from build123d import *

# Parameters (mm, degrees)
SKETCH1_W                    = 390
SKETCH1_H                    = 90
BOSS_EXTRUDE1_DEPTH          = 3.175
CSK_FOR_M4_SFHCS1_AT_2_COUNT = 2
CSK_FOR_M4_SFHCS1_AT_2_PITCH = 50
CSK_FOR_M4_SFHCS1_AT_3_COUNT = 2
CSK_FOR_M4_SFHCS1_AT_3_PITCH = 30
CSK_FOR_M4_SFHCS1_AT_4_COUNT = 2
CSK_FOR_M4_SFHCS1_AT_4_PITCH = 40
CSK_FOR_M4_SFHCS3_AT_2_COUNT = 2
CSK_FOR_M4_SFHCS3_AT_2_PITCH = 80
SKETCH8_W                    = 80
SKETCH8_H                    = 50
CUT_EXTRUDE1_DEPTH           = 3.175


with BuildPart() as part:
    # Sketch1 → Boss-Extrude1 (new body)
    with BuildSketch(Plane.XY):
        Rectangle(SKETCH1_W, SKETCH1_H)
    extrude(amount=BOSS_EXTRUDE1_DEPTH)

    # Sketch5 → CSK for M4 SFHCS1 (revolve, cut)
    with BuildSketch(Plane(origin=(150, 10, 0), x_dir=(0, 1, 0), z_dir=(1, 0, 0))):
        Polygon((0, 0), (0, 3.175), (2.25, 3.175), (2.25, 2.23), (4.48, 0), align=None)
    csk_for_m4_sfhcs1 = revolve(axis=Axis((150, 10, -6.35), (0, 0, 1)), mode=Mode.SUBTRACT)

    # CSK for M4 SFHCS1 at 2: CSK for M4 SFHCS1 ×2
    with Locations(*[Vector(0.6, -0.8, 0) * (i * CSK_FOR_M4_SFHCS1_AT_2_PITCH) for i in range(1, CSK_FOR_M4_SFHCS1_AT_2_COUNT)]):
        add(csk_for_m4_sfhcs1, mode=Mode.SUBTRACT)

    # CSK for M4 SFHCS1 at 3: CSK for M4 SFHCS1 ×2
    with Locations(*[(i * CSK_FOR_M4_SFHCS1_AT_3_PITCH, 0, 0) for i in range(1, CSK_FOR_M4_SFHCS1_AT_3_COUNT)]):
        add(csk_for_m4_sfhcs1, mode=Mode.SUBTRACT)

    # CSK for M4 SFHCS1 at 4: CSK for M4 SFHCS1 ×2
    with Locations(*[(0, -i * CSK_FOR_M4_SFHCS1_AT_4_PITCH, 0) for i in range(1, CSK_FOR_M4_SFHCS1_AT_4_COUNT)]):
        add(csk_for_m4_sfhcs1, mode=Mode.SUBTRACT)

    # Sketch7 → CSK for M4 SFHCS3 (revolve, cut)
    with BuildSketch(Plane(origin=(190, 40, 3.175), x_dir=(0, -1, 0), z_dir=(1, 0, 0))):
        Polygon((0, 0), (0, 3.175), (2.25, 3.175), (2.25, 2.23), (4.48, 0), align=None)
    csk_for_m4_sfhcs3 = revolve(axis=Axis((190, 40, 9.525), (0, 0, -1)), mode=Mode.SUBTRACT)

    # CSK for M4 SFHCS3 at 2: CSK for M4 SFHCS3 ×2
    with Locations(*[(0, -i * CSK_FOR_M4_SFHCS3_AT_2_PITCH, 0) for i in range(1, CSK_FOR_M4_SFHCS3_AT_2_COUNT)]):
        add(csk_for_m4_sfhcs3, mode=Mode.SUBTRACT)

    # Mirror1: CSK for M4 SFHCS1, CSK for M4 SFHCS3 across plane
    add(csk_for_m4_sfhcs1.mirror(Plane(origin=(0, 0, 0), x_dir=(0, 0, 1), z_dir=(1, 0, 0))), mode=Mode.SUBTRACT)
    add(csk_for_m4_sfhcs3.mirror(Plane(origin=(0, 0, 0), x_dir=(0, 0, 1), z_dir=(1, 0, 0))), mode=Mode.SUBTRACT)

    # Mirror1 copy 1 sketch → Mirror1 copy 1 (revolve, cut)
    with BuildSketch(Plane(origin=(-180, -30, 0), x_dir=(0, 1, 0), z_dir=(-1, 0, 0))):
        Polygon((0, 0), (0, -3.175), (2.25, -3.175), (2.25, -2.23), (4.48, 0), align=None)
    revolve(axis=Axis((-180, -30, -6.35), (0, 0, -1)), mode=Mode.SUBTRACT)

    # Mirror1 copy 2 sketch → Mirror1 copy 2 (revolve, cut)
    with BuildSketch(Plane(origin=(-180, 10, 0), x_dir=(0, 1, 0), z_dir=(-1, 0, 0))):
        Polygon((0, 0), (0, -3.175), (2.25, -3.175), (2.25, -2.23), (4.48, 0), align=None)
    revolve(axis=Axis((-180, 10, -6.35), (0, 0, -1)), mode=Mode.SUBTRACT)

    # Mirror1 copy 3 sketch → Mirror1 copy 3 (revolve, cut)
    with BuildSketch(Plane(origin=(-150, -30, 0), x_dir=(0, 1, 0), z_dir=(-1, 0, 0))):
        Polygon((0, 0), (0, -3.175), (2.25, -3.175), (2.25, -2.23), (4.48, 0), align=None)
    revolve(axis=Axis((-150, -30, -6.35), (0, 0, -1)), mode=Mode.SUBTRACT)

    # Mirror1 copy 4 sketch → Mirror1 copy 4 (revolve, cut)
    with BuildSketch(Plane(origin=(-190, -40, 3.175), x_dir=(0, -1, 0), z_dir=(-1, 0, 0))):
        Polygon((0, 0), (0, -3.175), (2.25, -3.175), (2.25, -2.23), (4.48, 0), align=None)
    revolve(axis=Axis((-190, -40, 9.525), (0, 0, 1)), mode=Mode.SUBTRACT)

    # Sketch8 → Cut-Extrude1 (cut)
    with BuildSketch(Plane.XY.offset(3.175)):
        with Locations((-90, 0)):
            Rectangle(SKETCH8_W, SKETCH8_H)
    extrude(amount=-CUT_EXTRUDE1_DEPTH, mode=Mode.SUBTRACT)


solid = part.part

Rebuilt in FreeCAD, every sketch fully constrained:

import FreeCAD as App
import Part
import Sketcher

V = App.Vector
Q = App.Units.Quantity

doc = App.newDocument("Part")
body = doc.addObject("PartDesign::Body", "Body")

# Sketch on XY plane
sketch1 = body.newObject("Sketcher::SketchObject", "Sketch")
sketch1.AttachmentSupport = (doc.getObject("XY_Plane"), [""])
sketch1.MapMode = "FlatFace"
sketch1.addGeometry(Part.LineSegment(V(-195, 45, 0), V(-195, -45, 0)), False)
sketch1.addGeometry(Part.LineSegment(V(-195, -45, 0), V(195, -45, 0)), False)
sketch1.addGeometry(Part.LineSegment(V(195, -45, 0), V(195, 45, 0)), False)
sketch1.addGeometry(Part.LineSegment(V(195, 45, 0), V(-195, 45, 0)), False)
sketch1.addConstraint(Sketcher.Constraint("Coincident", 0, 2, 1, 1))
sketch1.addConstraint(Sketcher.Constraint("Coincident", 1, 2, 2, 1))
sketch1.addConstraint(Sketcher.Constraint("Coincident", 2, 2, 3, 1))
sketch1.addConstraint(Sketcher.Constraint("Coincident", 3, 2, 0, 1))
sketch1.addConstraint(Sketcher.Constraint("Vertical", 0))
sketch1.addConstraint(Sketcher.Constraint("Horizontal", 1))
sketch1.addConstraint(Sketcher.Constraint("Vertical", 2))
sketch1.addConstraint(Sketcher.Constraint("Horizontal", 3))
sketch1.addConstraint(Sketcher.Constraint("Symmetric", 0, 2, 2, 2, -1, 1))
sketch1.addConstraint(Sketcher.Constraint("DistanceX", 1, 1, 1, 2, Q("390 mm")))
sketch1.addConstraint(Sketcher.Constraint("DistanceY", 0, 2, 0, 1, Q("90 mm")))
pad1 = body.newObject("PartDesign::Pad", "Pad")
pad1.Profile = sketch1
pad1.Length = 3.175

# Sketch on YZ plane
sketch2 = body.newObject("Sketcher::SketchObject", "Sketch001")
sketch2.AttachmentSupport = (doc.getObject("YZ_Plane"), [""])
sketch2.MapMode = "FlatFace"
sketch2.AttachmentOffset = App.Placement(V(0, 0, 150), App.Rotation())
sketch2.addGeometry(Part.LineSegment(V(10, 3.175, 0), V(10, 0, 0)), False)
sketch2.addGeometry(Part.LineSegment(V(10, 0, 0), V(14.48, 0, 0)), False)
sketch2.addGeometry(Part.LineSegment(V(14.48, 0, 0), V(12.25, 2.23, 0)), False)
sketch2.addGeometry(Part.LineSegment(V(12.25, 2.23, 0), V(12.25, 3.175, 0)), False)
sketch2.addGeometry(Part.LineSegment(V(12.25, 3.175, 0), V(10, 3.175, 0)), False)
sketch2.addGeometry(Part.LineSegment(V(10, 0, 0), V(10, 3.175, 0)), True)  # axis
sketch2.addConstraint(Sketcher.Constraint("Coincident", 0, 2, 1, 1))
sketch2.addConstraint(Sketcher.Constraint("Coincident", 1, 2, 2, 1))
sketch2.addConstraint(Sketcher.Constraint("Coincident", 2, 2, 3, 1))
sketch2.addConstraint(Sketcher.Constraint("Coincident", 3, 2, 4, 1))
sketch2.addConstraint(Sketcher.Constraint("Coincident", 4, 2, 0, 1))
sketch2.addConstraint(Sketcher.Constraint("Vertical", 0))
sketch2.addConstraint(Sketcher.Constraint("Horizontal", 1))
sketch2.addConstraint(Sketcher.Constraint("Vertical", 3))
sketch2.addConstraint(Sketcher.Constraint("Horizontal", 4))
sketch2.addConstraint(Sketcher.Constraint("Vertical", 5))
sketch2.addConstraint(Sketcher.Constraint("Coincident", 5, 1, 0, 2))
sketch2.addConstraint(Sketcher.Constraint("PointOnObject", 0, 2, -1))
sketch2.addConstraint(Sketcher.Constraint("Horizontal", 3, 2, 5, 2))
sketch2.addConstraint(Sketcher.Constraint("Angle", 2, Q("135 deg")))
sketch2.addConstraint(Sketcher.Constraint("DistanceX", -1, 1, 0, 2, Q("10 mm")))
sketch2.addConstraint(Sketcher.Constraint("DistanceX", 1, 1, 1, 2, Q("4.48 mm")))
sketch2.addConstraint(Sketcher.Constraint("DistanceX", 4, 2, 4, 1, Q("2.25 mm")))
sketch2.addConstraint(Sketcher.Constraint("DistanceY", 0, 2, 0, 1, Q("3.175 mm")))
groove = body.newObject("PartDesign::Groove", "Groove")
groove.Profile = sketch2
groove.ReferenceAxis = (sketch2, ["Axis0"])
groove.Angle = 360
doc.recompute()

datumline = body.newObject("PartDesign::Line", "DatumLine")
datumline.Placement = App.Placement(V(0, 0, 0), App.Rotation(V(0, 0, 1), V(0.6, -0.8, 0)))
linearpattern = body.newObject("PartDesign::LinearPattern", "LinearPattern")
linearpattern.Originals = [groove]
linearpattern.Direction = (datumline, [""])
linearpattern.Mode = "offset"
linearpattern.Offset = 50
linearpattern.Occurrences = 2
body.Tip = linearpattern
doc.recompute()

linearpattern2 = body.newObject("PartDesign::LinearPattern", "LinearPattern001")
linearpattern2.Originals = [groove]
linearpattern2.Direction = (doc.getObject("X_Axis"), [""])
linearpattern2.Mode = "offset"
linearpattern2.Offset = 30
linearpattern2.Occurrences = 2
body.Tip = linearpattern2
doc.recompute()

linearpattern3 = body.newObject("PartDesign::LinearPattern", "LinearPattern002")
linearpattern3.Originals = [groove]
linearpattern3.Direction = (doc.getObject("Y_Axis"), [""])
linearpattern3.Mode = "offset"
linearpattern3.Offset = 40
linearpattern3.Occurrences = 2
linearpattern3.Reversed = True
body.Tip = linearpattern3

# Sketch on YZ plane
sketch3 = body.newObject("Sketcher::SketchObject", "Sketch002")
sketch3.AttachmentSupport = (doc.getObject("YZ_Plane"), [""])
sketch3.MapMode = "FlatFace"
sketch3.AttachmentOffset = App.Placement(V(0, 0, 190), App.Rotation())
sketch3.addGeometry(Part.LineSegment(V(40, 0, 0), V(40, 3.175, 0)), False)
sketch3.addGeometry(Part.LineSegment(V(40, 3.175, 0), V(35.52, 3.175, 0)), False)
sketch3.addGeometry(Part.LineSegment(V(35.52, 3.175, 0), V(37.75, 0.945, 0)), False)
sketch3.addGeometry(Part.LineSegment(V(37.75, 0.945, 0), V(37.75, 0, 0)), False)
sketch3.addGeometry(Part.LineSegment(V(37.75, 0, 0), V(40, 0, 0)), False)
sketch3.addGeometry(Part.LineSegment(V(40, 3.175, 0), V(40, 0, 0)), True)  # axis
sketch3.addConstraint(Sketcher.Constraint("Coincident", 0, 2, 1, 1))
sketch3.addConstraint(Sketcher.Constraint("Coincident", 1, 2, 2, 1))
sketch3.addConstraint(Sketcher.Constraint("Coincident", 2, 2, 3, 1))
sketch3.addConstraint(Sketcher.Constraint("Coincident", 3, 2, 4, 1))
sketch3.addConstraint(Sketcher.Constraint("Coincident", 4, 2, 0, 1))
sketch3.addConstraint(Sketcher.Constraint("Vertical", 0))
sketch3.addConstraint(Sketcher.Constraint("Horizontal", 1))
sketch3.addConstraint(Sketcher.Constraint("Vertical", 3))
sketch3.addConstraint(Sketcher.Constraint("Horizontal", 4))
sketch3.addConstraint(Sketcher.Constraint("Vertical", 5))
sketch3.addConstraint(Sketcher.Constraint("Coincident", 5, 1, 0, 2))
sketch3.addConstraint(Sketcher.Constraint("PointOnObject", 3, 2, -1))
sketch3.addConstraint(Sketcher.Constraint("PointOnObject", 5, 2, -1))
sketch3.addConstraint(Sketcher.Constraint("Angle", 2, Q("-45 deg")))
sketch3.addConstraint(Sketcher.Constraint("DistanceX", -1, 1, 0, 2, Q("40 mm")))
sketch3.addConstraint(Sketcher.Constraint("DistanceX", 1, 2, 1, 1, Q("4.48 mm")))
sketch3.addConstraint(Sketcher.Constraint("DistanceX", 4, 1, 4, 2, Q("2.25 mm")))
sketch3.addConstraint(Sketcher.Constraint("DistanceY", 0, 1, 0, 2, Q("3.175 mm")))
groove2 = body.newObject("PartDesign::Groove", "Groove001")
groove2.Profile = sketch3
groove2.ReferenceAxis = (sketch3, ["Axis0"])
groove2.Angle = 360
doc.recompute()

linearpattern4 = body.newObject("PartDesign::LinearPattern", "LinearPattern003")
linearpattern4.Originals = [groove2]
linearpattern4.Direction = (doc.getObject("Y_Axis"), [""])
linearpattern4.Mode = "offset"
linearpattern4.Offset = 80
linearpattern4.Occurrences = 2
linearpattern4.Reversed = True
body.Tip = linearpattern4
doc.recompute()

mirrored = body.newObject("PartDesign::Mirrored", "Mirrored")
mirrored.Originals = [groove, groove2]
mirrored.MirrorPlane = (doc.getObject("YZ_Plane"), [""])
body.Tip = mirrored

# Sketch on YZ plane
sketch4 = body.newObject("Sketcher::SketchObject", "Sketch003")
sketch4.AttachmentSupport = (doc.getObject("YZ_Plane"), [""])
sketch4.MapMode = "FlatFace"
sketch4.AttachmentOffset = App.Placement(V(0, 0, -180), App.Rotation())
sketch4.addGeometry(Part.LineSegment(V(-30, 0, 0), V(-30, 3.175, 0)), False)
sketch4.addGeometry(Part.LineSegment(V(-30, 3.175, 0), V(-27.75, 3.175, 0)), False)
sketch4.addGeometry(Part.LineSegment(V(-27.75, 3.175, 0), V(-27.75, 2.23, 0)), False)
sketch4.addGeometry(Part.LineSegment(V(-27.75, 2.23, 0), V(-25.52, 0, 0)), False)
sketch4.addGeometry(Part.LineSegment(V(-25.52, 0, 0), V(-30, 0, 0)), False)
sketch4.addGeometry(Part.LineSegment(V(-30, 3.175, 0), V(-30, 0, 0)), True)  # axis
sketch4.addConstraint(Sketcher.Constraint("Coincident", 0, 2, 1, 1))
sketch4.addConstraint(Sketcher.Constraint("Coincident", 1, 2, 2, 1))
sketch4.addConstraint(Sketcher.Constraint("Coincident", 2, 2, 3, 1))
sketch4.addConstraint(Sketcher.Constraint("Coincident", 3, 2, 4, 1))
sketch4.addConstraint(Sketcher.Constraint("Coincident", 4, 2, 0, 1))
sketch4.addConstraint(Sketcher.Constraint("Vertical", 0))
sketch4.addConstraint(Sketcher.Constraint("Horizontal", 1))
sketch4.addConstraint(Sketcher.Constraint("Vertical", 2))
sketch4.addConstraint(Sketcher.Constraint("Horizontal", 4))
sketch4.addConstraint(Sketcher.Constraint("Vertical", 5))
sketch4.addConstraint(Sketcher.Constraint("Coincident", 5, 1, 0, 2))
sketch4.addConstraint(Sketcher.Constraint("PointOnObject", 3, 2, -1))
sketch4.addConstraint(Sketcher.Constraint("PointOnObject", 5, 2, -1))
sketch4.addConstraint(Sketcher.Constraint("Angle", 3, Q("-45 deg")))
sketch4.addConstraint(Sketcher.Constraint("DistanceX", 0, 2, -1, 1, Q("30 mm")))
sketch4.addConstraint(Sketcher.Constraint("DistanceX", 1, 1, 1, 2, Q("2.25 mm")))
sketch4.addConstraint(Sketcher.Constraint("DistanceX", 4, 2, 4, 1, Q("4.48 mm")))
sketch4.addConstraint(Sketcher.Constraint("DistanceY", 0, 1, 0, 2, Q("3.175 mm")))
groove3 = body.newObject("PartDesign::Groove", "Groove002")
groove3.Profile = sketch4
groove3.ReferenceAxis = (sketch4, ["Axis0"])
groove3.Angle = 360

# Sketch on YZ plane
sketch5 = body.newObject("Sketcher::SketchObject", "Sketch004")
sketch5.AttachmentSupport = (doc.getObject("YZ_Plane"), [""])
sketch5.MapMode = "FlatFace"
sketch5.AttachmentOffset = App.Placement(V(0, 0, -180), App.Rotation())
sketch5.addGeometry(Part.LineSegment(V(10, 0, 0), V(10, 3.175, 0)), False)
sketch5.addGeometry(Part.LineSegment(V(10, 3.175, 0), V(12.25, 3.175, 0)), False)
sketch5.addGeometry(Part.LineSegment(V(12.25, 3.175, 0), V(12.25, 2.23, 0)), False)
sketch5.addGeometry(Part.LineSegment(V(12.25, 2.23, 0), V(14.48, 0, 0)), False)
sketch5.addGeometry(Part.LineSegment(V(14.48, 0, 0), V(10, 0, 0)), False)
sketch5.addGeometry(Part.LineSegment(V(10, 3.175, 0), V(10, 0, 0)), True)  # axis
sketch5.addConstraint(Sketcher.Constraint("Coincident", 0, 2, 1, 1))
sketch5.addConstraint(Sketcher.Constraint("Coincident", 1, 2, 2, 1))
sketch5.addConstraint(Sketcher.Constraint("Coincident", 2, 2, 3, 1))
sketch5.addConstraint(Sketcher.Constraint("Coincident", 3, 2, 4, 1))
sketch5.addConstraint(Sketcher.Constraint("Coincident", 4, 2, 0, 1))
sketch5.addConstraint(Sketcher.Constraint("Vertical", 0))
sketch5.addConstraint(Sketcher.Constraint("Horizontal", 1))
sketch5.addConstraint(Sketcher.Constraint("Vertical", 2))
sketch5.addConstraint(Sketcher.Constraint("Horizontal", 4))
sketch5.addConstraint(Sketcher.Constraint("Vertical", 5))
sketch5.addConstraint(Sketcher.Constraint("Coincident", 5, 1, 0, 2))
sketch5.addConstraint(Sketcher.Constraint("PointOnObject", 3, 2, -1))
sketch5.addConstraint(Sketcher.Constraint("PointOnObject", 5, 2, -1))
sketch5.addConstraint(Sketcher.Constraint("Angle", 3, Q("-45 deg")))
sketch5.addConstraint(Sketcher.Constraint("DistanceX", -1, 1, 0, 2, Q("10 mm")))
sketch5.addConstraint(Sketcher.Constraint("DistanceX", 1, 1, 1, 2, Q("2.25 mm")))
sketch5.addConstraint(Sketcher.Constraint("DistanceX", 4, 2, 4, 1, Q("4.48 mm")))
sketch5.addConstraint(Sketcher.Constraint("DistanceY", 0, 1, 0, 2, Q("3.175 mm")))
groove4 = body.newObject("PartDesign::Groove", "Groove003")
groove4.Profile = sketch5
groove4.ReferenceAxis = (sketch5, ["Axis0"])
groove4.Angle = 360

# Sketch on YZ plane
sketch6 = body.newObject("Sketcher::SketchObject", "Sketch005")
sketch6.AttachmentSupport = (doc.getObject("YZ_Plane"), [""])
sketch6.MapMode = "FlatFace"
sketch6.AttachmentOffset = App.Placement(V(0, 0, -150), App.Rotation())
sketch6.addGeometry(Part.LineSegment(V(-30, 0, 0), V(-30, 3.175, 0)), False)
sketch6.addGeometry(Part.LineSegment(V(-30, 3.175, 0), V(-27.75, 3.175, 0)), False)
sketch6.addGeometry(Part.LineSegment(V(-27.75, 3.175, 0), V(-27.75, 2.23, 0)), False)
sketch6.addGeometry(Part.LineSegment(V(-27.75, 2.23, 0), V(-25.52, 0, 0)), False)
sketch6.addGeometry(Part.LineSegment(V(-25.52, 0, 0), V(-30, 0, 0)), False)
sketch6.addGeometry(Part.LineSegment(V(-30, 3.175, 0), V(-30, 0, 0)), True)  # axis
sketch6.addConstraint(Sketcher.Constraint("Coincident", 0, 2, 1, 1))
sketch6.addConstraint(Sketcher.Constraint("Coincident", 1, 2, 2, 1))
sketch6.addConstraint(Sketcher.Constraint("Coincident", 2, 2, 3, 1))
sketch6.addConstraint(Sketcher.Constraint("Coincident", 3, 2, 4, 1))
sketch6.addConstraint(Sketcher.Constraint("Coincident", 4, 2, 0, 1))
sketch6.addConstraint(Sketcher.Constraint("Vertical", 0))
sketch6.addConstraint(Sketcher.Constraint("Horizontal", 1))
sketch6.addConstraint(Sketcher.Constraint("Vertical", 2))
sketch6.addConstraint(Sketcher.Constraint("Horizontal", 4))
sketch6.addConstraint(Sketcher.Constraint("Vertical", 5))
sketch6.addConstraint(Sketcher.Constraint("Coincident", 5, 1, 0, 2))
sketch6.addConstraint(Sketcher.Constraint("PointOnObject", 3, 2, -1))
sketch6.addConstraint(Sketcher.Constraint("PointOnObject", 5, 2, -1))
sketch6.addConstraint(Sketcher.Constraint("Angle", 3, Q("-45 deg")))
sketch6.addConstraint(Sketcher.Constraint("DistanceX", 0, 2, -1, 1, Q("30 mm")))
sketch6.addConstraint(Sketcher.Constraint("DistanceX", 1, 1, 1, 2, Q("2.25 mm")))
sketch6.addConstraint(Sketcher.Constraint("DistanceX", 4, 2, 4, 1, Q("4.48 mm")))
sketch6.addConstraint(Sketcher.Constraint("DistanceY", 0, 1, 0, 2, Q("3.175 mm")))
groove5 = body.newObject("PartDesign::Groove", "Groove004")
groove5.Profile = sketch6
groove5.ReferenceAxis = (sketch6, ["Axis0"])
groove5.Angle = 360

# Sketch on YZ plane
sketch7 = body.newObject("Sketcher::SketchObject", "Sketch006")
sketch7.AttachmentSupport = (doc.getObject("YZ_Plane"), [""])
sketch7.MapMode = "FlatFace"
sketch7.AttachmentOffset = App.Placement(V(0, 0, -190), App.Rotation())
sketch7.addGeometry(Part.LineSegment(V(-40, 3.175, 0), V(-40, 0, 0)), False)
sketch7.addGeometry(Part.LineSegment(V(-40, 0, 0), V(-42.25, 0, 0)), False)
sketch7.addGeometry(Part.LineSegment(V(-42.25, 0, 0), V(-42.25, 0.945, 0)), False)
sketch7.addGeometry(Part.LineSegment(V(-42.25, 0.945, 0), V(-44.48, 3.175, 0)), False)
sketch7.addGeometry(Part.LineSegment(V(-44.48, 3.175, 0), V(-40, 3.175, 0)), False)
sketch7.addGeometry(Part.LineSegment(V(-40, 0, 0), V(-40, 3.175, 0)), True)  # axis
sketch7.addConstraint(Sketcher.Constraint("Coincident", 0, 2, 1, 1))
sketch7.addConstraint(Sketcher.Constraint("Coincident", 1, 2, 2, 1))
sketch7.addConstraint(Sketcher.Constraint("Coincident", 2, 2, 3, 1))
sketch7.addConstraint(Sketcher.Constraint("Coincident", 3, 2, 4, 1))
sketch7.addConstraint(Sketcher.Constraint("Coincident", 4, 2, 0, 1))
sketch7.addConstraint(Sketcher.Constraint("Vertical", 0))
sketch7.addConstraint(Sketcher.Constraint("Horizontal", 1))
sketch7.addConstraint(Sketcher.Constraint("Vertical", 2))
sketch7.addConstraint(Sketcher.Constraint("Horizontal", 4))
sketch7.addConstraint(Sketcher.Constraint("Vertical", 5))
sketch7.addConstraint(Sketcher.Constraint("Coincident", 5, 1, 0, 2))
sketch7.addConstraint(Sketcher.Constraint("PointOnObject", 0, 2, -1))
sketch7.addConstraint(Sketcher.Constraint("Horizontal", 3, 2, 5, 2))
sketch7.addConstraint(Sketcher.Constraint("Angle", 3, Q("135 deg")))
sketch7.addConstraint(Sketcher.Constraint("DistanceX", 0, 2, -1, 1, Q("40 mm")))
sketch7.addConstraint(Sketcher.Constraint("DistanceX", 1, 2, 1, 1, Q("2.25 mm")))
sketch7.addConstraint(Sketcher.Constraint("DistanceX", 4, 1, 4, 2, Q("4.48 mm")))
sketch7.addConstraint(Sketcher.Constraint("DistanceY", 0, 2, 0, 1, Q("3.175 mm")))
groove6 = body.newObject("PartDesign::Groove", "Groove005")
groove6.Profile = sketch7
groove6.ReferenceAxis = (sketch7, ["Axis0"])
groove6.Angle = 360

# Sketch on XY plane
sketch8 = body.newObject("Sketcher::SketchObject", "Sketch007")
sketch8.AttachmentSupport = (doc.getObject("XY_Plane"), [""])
sketch8.MapMode = "FlatFace"
sketch8.AttachmentOffset = App.Placement(V(0, 0, 3.175), App.Rotation())
sketch8.addGeometry(Part.LineSegment(V(-130, 25, 0), V(-130, -25, 0)), False)
sketch8.addGeometry(Part.LineSegment(V(-130, -25, 0), V(-50, -25, 0)), False)
sketch8.addGeometry(Part.LineSegment(V(-50, -25, 0), V(-50, 25, 0)), False)
sketch8.addGeometry(Part.LineSegment(V(-50, 25, 0), V(-130, 25, 0)), False)
sketch8.addConstraint(Sketcher.Constraint("Coincident", 0, 2, 1, 1))
sketch8.addConstraint(Sketcher.Constraint("Coincident", 1, 2, 2, 1))
sketch8.addConstraint(Sketcher.Constraint("Coincident", 2, 2, 3, 1))
sketch8.addConstraint(Sketcher.Constraint("Coincident", 3, 2, 0, 1))
sketch8.addConstraint(Sketcher.Constraint("Vertical", 0))
sketch8.addConstraint(Sketcher.Constraint("Horizontal", 1))
sketch8.addConstraint(Sketcher.Constraint("Vertical", 2))
sketch8.addConstraint(Sketcher.Constraint("Horizontal", 3))
sketch8.addConstraint(Sketcher.Constraint("DistanceX", 1, 1, 1, 2, Q("80 mm")))
sketch8.addConstraint(Sketcher.Constraint("DistanceY", 0, 2, 0, 1, Q("50 mm")))
sketch8.addConstraint(Sketcher.Constraint("DistanceX", 0, 2, -1, 1, Q("130 mm")))
sketch8.addConstraint(Sketcher.Constraint("DistanceY", 0, 2, -1, 1, Q("25 mm")))
pocket1 = body.newObject("PartDesign::Pocket", "Pocket")
pocket1.Profile = sketch8
pocket1.Length = 3.175

doc.recompute()
